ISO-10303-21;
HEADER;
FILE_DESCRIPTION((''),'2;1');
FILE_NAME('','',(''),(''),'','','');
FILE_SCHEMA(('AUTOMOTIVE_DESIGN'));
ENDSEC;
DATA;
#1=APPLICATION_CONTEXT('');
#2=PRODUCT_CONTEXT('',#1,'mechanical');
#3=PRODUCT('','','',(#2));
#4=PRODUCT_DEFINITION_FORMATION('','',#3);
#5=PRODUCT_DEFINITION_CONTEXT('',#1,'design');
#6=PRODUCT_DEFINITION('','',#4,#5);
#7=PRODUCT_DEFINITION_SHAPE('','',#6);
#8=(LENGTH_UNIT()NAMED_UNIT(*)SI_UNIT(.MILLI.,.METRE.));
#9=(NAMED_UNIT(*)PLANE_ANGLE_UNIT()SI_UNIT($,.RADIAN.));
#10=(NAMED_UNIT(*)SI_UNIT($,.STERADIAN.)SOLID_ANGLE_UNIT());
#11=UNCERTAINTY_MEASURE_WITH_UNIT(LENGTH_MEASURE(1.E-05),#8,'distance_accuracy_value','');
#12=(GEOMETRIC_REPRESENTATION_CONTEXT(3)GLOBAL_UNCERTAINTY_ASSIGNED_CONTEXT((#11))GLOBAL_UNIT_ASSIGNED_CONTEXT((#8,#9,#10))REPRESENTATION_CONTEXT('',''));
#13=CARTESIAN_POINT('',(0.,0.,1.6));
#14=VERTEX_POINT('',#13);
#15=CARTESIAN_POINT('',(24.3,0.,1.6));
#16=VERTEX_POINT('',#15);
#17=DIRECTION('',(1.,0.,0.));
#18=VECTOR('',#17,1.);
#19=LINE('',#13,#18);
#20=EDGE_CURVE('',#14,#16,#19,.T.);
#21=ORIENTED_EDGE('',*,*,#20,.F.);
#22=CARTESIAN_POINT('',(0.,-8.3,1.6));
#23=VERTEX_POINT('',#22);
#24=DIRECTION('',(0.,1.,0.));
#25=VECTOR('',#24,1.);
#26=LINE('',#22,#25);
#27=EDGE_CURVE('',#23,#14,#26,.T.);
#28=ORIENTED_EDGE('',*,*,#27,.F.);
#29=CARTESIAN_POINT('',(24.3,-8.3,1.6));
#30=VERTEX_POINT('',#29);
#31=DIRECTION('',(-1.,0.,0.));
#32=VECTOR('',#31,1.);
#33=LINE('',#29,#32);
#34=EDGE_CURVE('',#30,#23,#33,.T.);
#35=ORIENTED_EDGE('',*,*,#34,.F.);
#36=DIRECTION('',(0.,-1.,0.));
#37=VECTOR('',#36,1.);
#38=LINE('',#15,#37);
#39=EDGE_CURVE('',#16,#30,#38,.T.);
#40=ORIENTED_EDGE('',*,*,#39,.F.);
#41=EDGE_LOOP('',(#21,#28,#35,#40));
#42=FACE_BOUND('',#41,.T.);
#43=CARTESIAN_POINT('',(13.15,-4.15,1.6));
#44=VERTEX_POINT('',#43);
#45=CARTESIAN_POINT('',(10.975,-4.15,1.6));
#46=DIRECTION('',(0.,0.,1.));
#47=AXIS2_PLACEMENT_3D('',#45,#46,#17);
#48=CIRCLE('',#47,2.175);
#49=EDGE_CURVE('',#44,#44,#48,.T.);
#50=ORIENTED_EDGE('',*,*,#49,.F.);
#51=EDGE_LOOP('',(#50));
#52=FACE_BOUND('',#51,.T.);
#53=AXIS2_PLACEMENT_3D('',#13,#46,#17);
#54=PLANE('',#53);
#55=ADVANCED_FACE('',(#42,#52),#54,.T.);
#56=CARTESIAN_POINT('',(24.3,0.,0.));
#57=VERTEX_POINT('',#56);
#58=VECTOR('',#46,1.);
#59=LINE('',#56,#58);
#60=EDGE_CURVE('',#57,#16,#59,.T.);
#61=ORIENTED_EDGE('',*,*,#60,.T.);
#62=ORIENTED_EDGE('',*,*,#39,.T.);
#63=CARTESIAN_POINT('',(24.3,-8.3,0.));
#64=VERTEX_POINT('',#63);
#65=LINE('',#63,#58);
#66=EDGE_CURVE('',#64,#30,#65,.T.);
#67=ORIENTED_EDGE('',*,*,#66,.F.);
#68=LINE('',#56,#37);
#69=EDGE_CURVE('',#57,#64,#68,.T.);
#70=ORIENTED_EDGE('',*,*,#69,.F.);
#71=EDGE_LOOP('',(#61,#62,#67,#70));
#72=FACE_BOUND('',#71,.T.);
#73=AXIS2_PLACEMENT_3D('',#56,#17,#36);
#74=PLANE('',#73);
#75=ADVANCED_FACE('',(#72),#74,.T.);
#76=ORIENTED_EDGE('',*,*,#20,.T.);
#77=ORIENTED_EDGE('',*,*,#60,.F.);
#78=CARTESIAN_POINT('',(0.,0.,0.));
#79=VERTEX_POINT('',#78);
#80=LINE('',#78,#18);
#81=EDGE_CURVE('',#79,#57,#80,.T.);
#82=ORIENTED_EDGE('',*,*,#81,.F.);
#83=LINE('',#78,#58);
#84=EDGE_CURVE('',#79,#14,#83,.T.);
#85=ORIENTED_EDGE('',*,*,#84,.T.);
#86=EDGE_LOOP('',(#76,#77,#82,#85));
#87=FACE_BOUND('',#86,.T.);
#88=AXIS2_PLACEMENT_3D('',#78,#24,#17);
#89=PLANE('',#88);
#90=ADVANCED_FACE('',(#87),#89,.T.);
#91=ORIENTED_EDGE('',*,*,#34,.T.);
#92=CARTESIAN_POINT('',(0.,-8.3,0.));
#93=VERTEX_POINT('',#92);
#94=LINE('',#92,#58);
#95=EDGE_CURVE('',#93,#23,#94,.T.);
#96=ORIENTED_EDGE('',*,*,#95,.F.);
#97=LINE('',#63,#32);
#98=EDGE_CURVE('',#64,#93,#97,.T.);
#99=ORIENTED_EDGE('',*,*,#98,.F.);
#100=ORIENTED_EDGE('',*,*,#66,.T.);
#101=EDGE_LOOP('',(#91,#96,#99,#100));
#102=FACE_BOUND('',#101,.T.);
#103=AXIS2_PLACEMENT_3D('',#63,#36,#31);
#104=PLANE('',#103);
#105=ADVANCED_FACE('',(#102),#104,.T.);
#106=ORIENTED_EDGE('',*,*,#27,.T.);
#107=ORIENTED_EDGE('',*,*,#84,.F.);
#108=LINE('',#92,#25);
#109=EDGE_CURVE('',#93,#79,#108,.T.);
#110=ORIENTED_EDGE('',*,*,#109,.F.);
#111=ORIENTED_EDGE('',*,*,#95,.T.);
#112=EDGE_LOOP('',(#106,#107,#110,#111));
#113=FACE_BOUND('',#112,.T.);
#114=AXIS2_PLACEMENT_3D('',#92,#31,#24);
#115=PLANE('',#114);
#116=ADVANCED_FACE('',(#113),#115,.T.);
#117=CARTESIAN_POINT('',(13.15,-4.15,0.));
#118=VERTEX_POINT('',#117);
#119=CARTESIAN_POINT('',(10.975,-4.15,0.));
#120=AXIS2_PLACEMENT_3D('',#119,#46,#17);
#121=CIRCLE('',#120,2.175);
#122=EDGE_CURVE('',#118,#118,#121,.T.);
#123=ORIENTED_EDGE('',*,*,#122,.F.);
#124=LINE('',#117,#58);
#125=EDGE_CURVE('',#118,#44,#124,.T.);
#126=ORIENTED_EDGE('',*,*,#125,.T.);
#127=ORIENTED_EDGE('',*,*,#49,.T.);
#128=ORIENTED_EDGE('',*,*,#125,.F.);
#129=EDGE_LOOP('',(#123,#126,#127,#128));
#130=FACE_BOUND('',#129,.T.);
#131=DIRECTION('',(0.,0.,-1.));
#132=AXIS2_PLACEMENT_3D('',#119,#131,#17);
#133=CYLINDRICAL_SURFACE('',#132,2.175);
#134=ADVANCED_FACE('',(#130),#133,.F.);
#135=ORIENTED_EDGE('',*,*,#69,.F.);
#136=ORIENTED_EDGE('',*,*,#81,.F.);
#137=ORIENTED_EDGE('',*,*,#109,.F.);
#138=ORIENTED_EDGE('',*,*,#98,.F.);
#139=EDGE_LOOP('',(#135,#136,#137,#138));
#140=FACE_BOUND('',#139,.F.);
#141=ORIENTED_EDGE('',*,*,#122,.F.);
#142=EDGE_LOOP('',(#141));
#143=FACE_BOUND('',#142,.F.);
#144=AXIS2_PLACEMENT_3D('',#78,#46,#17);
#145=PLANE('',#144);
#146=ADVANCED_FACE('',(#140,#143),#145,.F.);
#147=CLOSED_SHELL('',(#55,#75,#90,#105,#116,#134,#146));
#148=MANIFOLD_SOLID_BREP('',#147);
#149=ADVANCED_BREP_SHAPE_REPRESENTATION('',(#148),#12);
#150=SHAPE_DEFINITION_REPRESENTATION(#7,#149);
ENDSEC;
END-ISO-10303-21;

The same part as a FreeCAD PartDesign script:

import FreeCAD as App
import Part
import Sketcher
from FreeCAD import Vector
Q = App.Units.Quantity

doc = App.newDocument("Part")
params = doc.addObject("Spreadsheet::Sheet", "Params")
for row, (alias, value) in enumerate([
    ("sketch1_diameter", "4.35 mm"),
    ("sketch1_width", "24.3 mm"),
    ("sketch1_height", "8.3 mm"),
    ("pad1_length", "1.6 mm"),
], start=1):
    params.set(f"A{row}", alias)
    params.set(f"B{row}", "=" + value)
    params.setAlias(f"B{row}", alias)

body = doc.addObject("PartDesign::Body", "Body")

sketch1 = doc.addObject("Sketcher::SketchObject", "Sketch")
body.addObject(sketch1)
sketch1.AttachmentSupport = (doc.XY_Plane, [""])
sketch1.MapMode = "FlatFace"
sketch1.addGeometry([
    Part.LineSegment(Vector(24.3, 0, 0), Vector(0, 0, 0)),
    Part.LineSegment(Vector(0, 0, 0), Vector(0, -8.3, 0)),
    Part.LineSegment(Vector(0, -8.3, 0), Vector(24.3, -8.3, 0)),
    Part.LineSegment(Vector(24.3, -8.3, 0), Vector(24.3, 0, 0)),
    Part.Circle(Vector(11, -4.2, 0), Vector(0, 0, 1), 2.2),
], False)
sketch1.addConstraint([
    Sketcher.Constraint("Coincident", 0, 2, 1, 1),
    Sketcher.Constraint("Coincident", 1, 2, 2, 1),
    Sketcher.Constraint("Coincident", 2, 2, 3, 1),
    Sketcher.Constraint("Coincident", 3, 2, 0, 1),
    Sketcher.Constraint("Horizontal", 0),
    Sketcher.Constraint("Vertical", 1),
    Sketcher.Constraint("Horizontal", 2),
    Sketcher.Constraint("Vertical", 3),
    Sketcher.Constraint("Coincident", 0, 2, -1, 1),
    Sketcher.Constraint("Diameter", 4, Q("4.35 mm")),
    Sketcher.Constraint("DistanceX", 0, 2, 0, 1, Q("24.3 mm")),
    Sketcher.Constraint("DistanceY", 1, 2, 1, 1, Q("8.3 mm")),
    Sketcher.Constraint("DistanceY", 4, 3, -1, 1, Q("4.15 mm")),
    Sketcher.Constraint("DistanceX", 4, 3, 2, 2, Q("13.325 mm")),
])
sketch1.setExpression("Constraints[9]", "Params.sketch1_diameter")
sketch1.setExpression("Constraints[10]", "Params.sketch1_width")
sketch1.setExpression("Constraints[11]", "Params.sketch1_height")
pad1 = doc.addObject("PartDesign::Pad", "Pad")
body.addObject(pad1)
pad1.Profile = sketch1
pad1.setExpression("Length", "Params.pad1_length")

doc.recompute()
